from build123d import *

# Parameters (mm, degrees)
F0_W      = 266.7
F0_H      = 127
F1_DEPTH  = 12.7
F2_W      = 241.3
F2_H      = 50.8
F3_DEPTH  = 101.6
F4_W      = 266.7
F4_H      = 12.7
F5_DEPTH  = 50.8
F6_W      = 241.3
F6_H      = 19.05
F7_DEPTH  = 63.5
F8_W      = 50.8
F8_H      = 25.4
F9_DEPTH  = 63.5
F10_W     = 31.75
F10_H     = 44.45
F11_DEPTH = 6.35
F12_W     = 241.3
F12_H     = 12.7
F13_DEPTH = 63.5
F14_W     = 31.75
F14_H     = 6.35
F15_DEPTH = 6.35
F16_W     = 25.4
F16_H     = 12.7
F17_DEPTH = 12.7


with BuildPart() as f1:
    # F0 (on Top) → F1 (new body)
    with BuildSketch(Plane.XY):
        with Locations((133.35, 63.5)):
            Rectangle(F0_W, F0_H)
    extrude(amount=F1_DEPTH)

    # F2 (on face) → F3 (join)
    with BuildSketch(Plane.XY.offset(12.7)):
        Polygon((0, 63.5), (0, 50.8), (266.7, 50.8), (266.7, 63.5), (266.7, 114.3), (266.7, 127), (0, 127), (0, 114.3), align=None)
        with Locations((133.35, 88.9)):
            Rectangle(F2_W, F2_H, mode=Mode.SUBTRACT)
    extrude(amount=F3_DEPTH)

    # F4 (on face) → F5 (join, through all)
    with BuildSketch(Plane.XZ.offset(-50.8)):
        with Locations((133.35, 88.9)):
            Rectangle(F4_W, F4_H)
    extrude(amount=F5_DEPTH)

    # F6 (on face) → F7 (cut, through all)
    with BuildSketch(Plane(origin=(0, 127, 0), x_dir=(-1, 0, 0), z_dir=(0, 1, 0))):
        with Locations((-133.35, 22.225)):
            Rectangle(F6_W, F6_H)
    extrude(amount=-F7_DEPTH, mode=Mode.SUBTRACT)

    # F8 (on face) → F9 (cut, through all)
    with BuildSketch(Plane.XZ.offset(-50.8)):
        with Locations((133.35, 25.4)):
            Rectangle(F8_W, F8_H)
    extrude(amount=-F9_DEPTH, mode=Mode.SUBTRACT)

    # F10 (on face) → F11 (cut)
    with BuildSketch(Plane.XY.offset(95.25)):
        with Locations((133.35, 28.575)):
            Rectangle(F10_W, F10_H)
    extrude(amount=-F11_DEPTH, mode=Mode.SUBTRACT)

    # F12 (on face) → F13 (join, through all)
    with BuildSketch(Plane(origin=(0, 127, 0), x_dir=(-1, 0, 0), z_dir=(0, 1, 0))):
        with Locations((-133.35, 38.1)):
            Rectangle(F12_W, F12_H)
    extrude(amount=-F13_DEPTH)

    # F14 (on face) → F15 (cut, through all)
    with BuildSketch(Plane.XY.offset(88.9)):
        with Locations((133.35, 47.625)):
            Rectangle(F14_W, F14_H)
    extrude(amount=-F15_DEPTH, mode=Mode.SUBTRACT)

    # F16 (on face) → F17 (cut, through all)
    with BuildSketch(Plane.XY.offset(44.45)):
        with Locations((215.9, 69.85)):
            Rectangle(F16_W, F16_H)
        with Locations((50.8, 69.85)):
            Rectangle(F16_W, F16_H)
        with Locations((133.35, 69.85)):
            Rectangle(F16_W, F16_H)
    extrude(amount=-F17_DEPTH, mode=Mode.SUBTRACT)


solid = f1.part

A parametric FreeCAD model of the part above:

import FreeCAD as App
import Part
import Sketcher
Q = App.Units.Quantity

doc = App.newDocument("Part")
body = doc.addObject("PartDesign::Body", "Body")

# Sketch on XY plane
sketch1 = body.newObject("Sketcher::SketchObject", "Sketch")
sketch1.AttachmentSupport = (doc.getObject("XY_Plane"), [""])
sketch1.MapMode = "FlatFace"
sketch1.addGeometry(Part.LineSegment(App.Vector(0, 127, 0), App.Vector(0, 0, 0)), False)
sketch1.addGeometry(Part.LineSegment(App.Vector(0, 0, 0), App.Vector(266.7, 0, 0)), False)
sketch1.addGeometry(Part.LineSegment(App.Vector(266.7, 0, 0), App.Vector(266.7, 127, 0)), False)
sketch1.addGeometry(Part.LineSegment(App.Vector(266.7, 127, 0), App.Vector(0, 127, 0)), False)
sketch1.addConstraint(Sketcher.Constraint("Coincident", 0, 2, 1, 1))
sketch1.addConstraint(Sketcher.Constraint("Coincident", 1, 2, 2, 1))
sketch1.addConstraint(Sketcher.Constraint("Coincident", 2, 2, 3, 1))
sketch1.addConstraint(Sketcher.Constraint("Coincident", 3, 2, 0, 1))
sketch1.addConstraint(Sketcher.Constraint("Vertical", 0))
sketch1.addConstraint(Sketcher.Constraint("Horizontal", 1))
sketch1.addConstraint(Sketcher.Constraint("Vertical", 2))
sketch1.addConstraint(Sketcher.Constraint("Horizontal", 3))
sketch1.addConstraint(Sketcher.Constraint("Coincident", 0, 2, -1, 1))
sketch1.addConstraint(Sketcher.Constraint("DistanceY", 0, 2, 0, 1, Q("5 in")))
sketch1.addConstraint(Sketcher.Constraint("DistanceX", 1, 1, 1, 2, Q("10.5 in")))
pad1 = body.newObject("PartDesign::Pad", "Pad")
pad1.Profile = sketch1
pad1.Length = Q("0.5 in")

# Sketch on XY plane
sketch2 = body.newObject("Sketcher::SketchObject", "Sketch001")
sketch2.AttachmentSupport = (doc.getObject("XY_Plane"), [""])
sketch2.MapMode = "FlatFace"
sketch2.AttachmentOffset = App.Placement(App.Vector(0, 0, 0.5 * 25.4), App.Rotation())
sketch2.addGeometry(Part.LineSegment(App.Vector(0, 50.8, 0), App.Vector(266.7, 50.8, 0)), False)
sketch2.addGeometry(Part.LineSegment(App.Vector(266.7, 50.8, 0), App.Vector(266.7, 127, 0)), False)
sketch2.addGeometry(Part.LineSegment(App.Vector(266.7, 127, 0), App.Vector(0, 127, 0)), False)
sketch2.addGeometry(Part.LineSegment(App.Vector(0, 127, 0), App.Vector(0, 50.8, 0)), False)
sketch2.addGeometry(Part.LineSegment(App.Vector(254, 63.5, 0), App.Vector(12.7, 63.5, 0)), False)
sketch2.addGeometry(Part.LineSegment(App.Vector(12.7, 63.5, 0), App.Vector(12.7, 114.3, 0)), False)
sketch2.addGeometry(Part.LineSegment(App.Vector(12.7, 114.3, 0), App.Vector(254, 114.3, 0)), False)
sketch2.addGeometry(Part.LineSegment(App.Vector(254, 114.3, 0), App.Vector(254, 63.5, 0)), False)
sketch2.addConstraint(Sketcher.Constraint("Coincident", 0, 2, 1, 1))
sketch2.addConstraint(Sketcher.Constraint("Coincident", 1, 2, 2, 1))
sketch2.addConstraint(Sketcher.Constraint("Coincident", 2, 2, 3, 1))
sketch2.addConstraint(Sketcher.Constraint("Coincident", 3, 2, 0, 1))
sketch2.addConstraint(Sketcher.Constraint("Coincident", 4, 2, 5, 1))
sketch2.addConstraint(Sketcher.Constraint("Coincident", 5, 2, 6, 1))
sketch2.addConstraint(Sketcher.Constraint("Coincident", 6, 2, 7, 1))
sketch2.addConstraint(Sketcher.Constraint("Coincident", 7, 2, 4, 1))
sketch2.addConstraint(Sketcher.Constraint("Horizontal", 0))
sketch2.addConstraint(Sketcher.Constraint("Vertical", 1))
sketch2.addConstraint(Sketcher.Constraint("Horizontal", 2))
sketch2.addConstraint(Sketcher.Constraint("Vertical", 3))
sketch2.addConstraint(Sketcher.Constraint("Horizontal", 4))
sketch2.addConstraint(Sketcher.Constraint("Vertical", 5))
sketch2.addConstraint(Sketcher.Constraint("Horizontal", 6))
sketch2.addConstraint(Sketcher.Constraint("Vertical", 7))
sketch2.addConstraint(Sketcher.Constraint("PointOnObject", 2, 2, -2))
sketch2.addConstraint(Sketcher.Constraint("DistanceY", 1, 1, 1, 2, Q("3 in")))
sketch2.addConstraint(Sketcher.Constraint("DistanceY", 5, 1, 5, 2, Q("2 in")))
sketch2.addConstraint(Sketcher.Constraint("DistanceX", 0, 1, 0, 2, Q("10.5 in")))
sketch2.addConstraint(Sketcher.Constraint("DistanceX", 4, 2, 4, 1, Q("9.5 in")))
sketch2.addConstraint(Sketcher.Constraint("DistanceY", -1, 1, 0, 2, Q("2 in")))
sketch2.addConstraint(Sketcher.Constraint("DistanceX", -1, 1, 6, 2, Q("10 in")))
sketch2.addConstraint(Sketcher.Constraint("DistanceY", -1, 1, 4, 2, Q("2.5 in")))
pad2 = body.newObject("PartDesign::Pad", "Pad001")
pad2.Profile = sketch2
pad2.Length = Q("4 in")

# Sketch on XZ plane
sketch3 = body.newObject("Sketcher::SketchObject", "Sketch002")
sketch3.AttachmentSupport = (doc.getObject("XZ_Plane"), [""])
sketch3.MapMode = "FlatFace"
sketch3.AttachmentOffset = App.Placement(App.Vector(0, 0, -2 * 25.4), App.Rotation())
sketch3.addGeometry(Part.LineSegment(App.Vector(0, 95.25, 0), App.Vector(0, 82.55, 0)), False)
sketch3.addGeometry(Part.LineSegment(App.Vector(0, 82.55, 0), App.Vector(266.7, 82.55, 0)), False)
sketch3.addGeometry(Part.LineSegment(App.Vector(266.7, 82.55, 0), App.Vector(266.7, 95.25, 0)), False)
sketch3.addGeometry(Part.LineSegment(App.Vector(266.7, 95.25, 0), App.Vector(0, 95.25, 0)), False)
sketch3.addConstraint(Sketcher.Constraint("Coincident", 0, 2, 1, 1))
sketch3.addConstraint(Sketcher.Constraint("Coincident", 1, 2, 2, 1))
sketch3.addConstraint(Sketcher.Constraint("Coincident", 2, 2, 3, 1))
sketch3.addConstraint(Sketcher.Constraint("Coincident", 3, 2, 0, 1))
sketch3.addConstraint(Sketcher.Constraint("Vertical", 0))
sketch3.addConstraint(Sketcher.Constraint("Horizontal", 1))
sketch3.addConstraint(Sketcher.Constraint("Vertical", 2))
sketch3.addConstraint(Sketcher.Constraint("Horizontal", 3))
sketch3.addConstraint(Sketcher.Constraint("PointOnObject", 0, 2, -2))
sketch3.addConstraint(Sketcher.Constraint("DistanceX", 1, 1, 1, 2, Q("10.5 in")))
sketch3.addConstraint(Sketcher.Constraint("DistanceY", 0, 2, 0, 1, Q("0.5 in")))
sketch3.addConstraint(Sketcher.Constraint("DistanceY", -1, 1, 0, 2, Q("3.25 in")))
pad3 = body.newObject("PartDesign::Pad", "Pad002")
pad3.Profile = sketch3
pad3.Length = Q("2 in")

# Sketch on XZ plane
sketch4 = body.newObject("Sketcher::SketchObject", "Sketch003")
sketch4.AttachmentSupport = (doc.getObject("XZ_Plane"), [""])
sketch4.MapMode = "FlatFace"
sketch4.AttachmentOffset = App.Placement(App.Vector(0, 0, -5 * 25.4), App.Rotation())
sketch4.addGeometry(Part.LineSegment(App.Vector(254, 31.75, 0), App.Vector(254, 12.7, 0)), False)
sketch4.addGeometry(Part.LineSegment(App.Vector(254, 12.7, 0), App.Vector(12.7, 12.7, 0)), False)
sketch4.addGeometry(Part.LineSegment(App.Vector(12.7, 12.7, 0), App.Vector(12.7, 31.75, 0)), False)
sketch4.addGeometry(Part.LineSegment(App.Vector(12.7, 31.75, 0), App.Vector(254, 31.75, 0)), False)
sketch4.addConstraint(Sketcher.Constraint("Coincident", 0, 2, 1, 1))
sketch4.addConstraint(Sketcher.Constraint("Coincident", 1, 2, 2, 1))
sketch4.addConstraint(Sketcher.Constraint("Coincident", 2, 2, 3, 1))
sketch4.addConstraint(Sketcher.Constraint("Coincident", 3, 2, 0, 1))
sketch4.addConstraint(Sketcher.Constraint("Vertical", 0))
sketch4.addConstraint(Sketcher.Constraint("Horizontal", 1))
sketch4.addConstraint(Sketcher.Constraint("Vertical", 2))
sketch4.addConstraint(Sketcher.Constraint("Horizontal", 3))
sketch4.addConstraint(Sketcher.Constraint("DistanceX", 1, 2, 1, 1, Q("9.5 in")))
sketch4.addConstraint(Sketcher.Constraint("DistanceX", -1, 1, 0, 2, Q("10 in")))
sketch4.addConstraint(Sketcher.Constraint("DistanceY", 0, 2, 0, 1, Q("0.75 in")))
sketch4.addConstraint(Sketcher.Constraint("DistanceY", -1, 1, 0, 2, Q("0.5 in")))
pocket1 = body.newObject("PartDesign::Pocket", "Pocket")
pocket1.Profile = sketch4
pocket1.Length = Q("2.5 in")
pocket1.Reversed = True

# Sketch on XZ plane
sketch5 = body.newObject("Sketcher::SketchObject", "Sketch004")
sketch5.AttachmentSupport = (doc.getObject("XZ_Plane"), [""])
sketch5.MapMode = "FlatFace"
sketch5.AttachmentOffset = App.Placement(App.Vector(0, 0, -2 * 25.4), App.Rotation())
sketch5.addGeometry(Part.LineSegment(App.Vector(107.95, 38.1, 0), App.Vector(107.95, 12.7, 0)), False)
sketch5.addGeometry(Part.LineSegment(App.Vector(107.95, 12.7, 0), App.Vector(158.75, 12.7, 0)), False)
sketch5.addGeometry(Part.LineSegment(App.Vector(158.75, 12.7, 0), App.Vector(158.75, 38.1, 0)), False)
sketch5.addGeometry(Part.LineSegment(App.Vector(158.75, 38.1, 0), App.Vector(107.95, 38.1, 0)), False)
sketch5.addConstraint(Sketcher.Constraint("Coincident", 0, 2, 1, 1))
sketch5.addConstraint(Sketcher.Constraint("Coincident", 1, 2, 2, 1))
sketch5.addConstraint(Sketcher.Constraint("Coincident", 2, 2, 3, 1))
sketch5.addConstraint(Sketcher.Constraint("Coincident", 3, 2, 0, 1))
sketch5.addConstraint(Sketcher.Constraint("Vertical", 0))
sketch5.addConstraint(Sketcher.Constraint("Horizontal", 1))
sketch5.addConstraint(Sketcher.Constraint("Vertical", 2))
sketch5.addConstraint(Sketcher.Constraint("Horizontal", 3))
sketch5.addConstraint(Sketcher.Constraint("DistanceX", 1, 1, 1, 2, Q("2 in")))
sketch5.addConstraint(Sketcher.Constraint("DistanceY", 0, 2, 0, 1, Q("1 in")))
sketch5.addConstraint(Sketcher.Constraint("DistanceY", -1, 1, 0, 2, Q("0.5 in")))
sketch5.addConstraint(Sketcher.Constraint("DistanceX", -1, 1, 0, 2, Q("4.25 in")))
pocket2 = body.newObject("PartDesign::Pocket", "Pocket001")
pocket2.Profile = sketch5
pocket2.Length = Q("2.5 in")

# Sketch on XY plane
sketch6 = body.newObject("Sketcher::SketchObject", "Sketch005")
sketch6.AttachmentSupport = (doc.getObject("XY_Plane"), [""])
sketch6.MapMode = "FlatFace"
sketch6.AttachmentOffset = App.Placement(App.Vector(0, 0, 3.75 * 25.4), App.Rotation())
sketch6.addGeometry(Part.LineSegment(App.Vector(117.475, 50.8, 0), App.Vector(117.475, 6.35, 0)), False)
sketch6.addGeometry(Part.LineSegment(App.Vector(117.475, 6.35, 0), App.Vector(149.225, 6.35, 0)), False)
sketch6.addGeometry(Part.LineSegment(App.Vector(149.225, 6.35, 0), App.Vector(149.225, 50.8, 0)), False)
sketch6.addGeometry(Part.LineSegment(App.Vector(149.225, 50.8, 0), App.Vector(117.475, 50.8, 0)), False)
sketch6.addConstraint(Sketcher.Constraint("Coincident", 0, 2, 1, 1))
sketch6.addConstraint(Sketcher.Constraint("Coincident", 1, 2, 2, 1))
sketch6.addConstraint(Sketcher.Constraint("Coincident", 2, 2, 3, 1))
sketch6.addConstraint(Sketcher.Constraint("Coincident", 3, 2, 0, 1))
sketch6.addConstraint(Sketcher.Constraint("Vertical", 0))
sketch6.addConstraint(Sketcher.Constraint("Horizontal", 1))
sketch6.addConstraint(Sketcher.Constraint("Vertical", 2))
sketch6.addConstraint(Sketcher.Constraint("Horizontal", 3))
sketch6.addConstraint(Sketcher.Constraint("DistanceY", -1, 1, 2, 2, Q("2 in")))
sketch6.addConstraint(Sketcher.Constraint("DistanceX", 1, 1, 1, 2, Q("1.25 in")))
sketch6.addConstraint(Sketcher.Constraint("DistanceY", 0, 2, 0, 1, Q("1.75 in")))
sketch6.addConstraint(Sketcher.Constraint("DistanceX", -1, 1, 0, 2, Q("4.625 in")))
pocket3 = body.newObject("PartDesign::Pocket", "Pocket002")
pocket3.Profile = sketch6
pocket3.Length = Q("0.25 in")

# Sketch on XZ plane
sketch7 = body.newObject("Sketcher::SketchObject", "Sketch006")
sketch7.AttachmentSupport = (doc.getObject("XZ_Plane"), [""])
sketch7.MapMode = "FlatFace"
sketch7.AttachmentOffset = App.Placement(App.Vector(0, 0, -5 * 25.4), App.Rotation())
sketch7.addGeometry(Part.LineSegment(App.Vector(254, 44.45, 0), App.Vector(254, 31.75, 0)), False)
sketch7.addGeometry(Part.LineSegment(App.Vector(254, 31.75, 0), App.Vector(12.7, 31.75, 0)), False)
sketch7.addGeometry(Part.LineSegment(App.Vector(12.7, 31.75, 0), App.Vector(12.7, 44.45, 0)), False)
sketch7.addGeometry(Part.LineSegment(App.Vector(12.7, 44.45, 0), App.Vector(254, 44.45, 0)), False)
sketch7.addConstraint(Sketcher.Constraint("Coincident", 0, 2, 1, 1))
sketch7.addConstraint(Sketcher.Constraint("Coincident", 1, 2, 2, 1))
sketch7.addConstraint(Sketcher.Constraint("Coincident", 2, 2, 3, 1))
sketch7.addConstraint(Sketcher.Constraint("Coincident", 3, 2, 0, 1))
sketch7.addConstraint(Sketcher.Constraint("Vertical", 0))
sketch7.addConstraint(Sketcher.Constraint("Horizontal", 1))
sketch7.addConstraint(Sketcher.Constraint("Vertical", 2))
sketch7.addConstraint(Sketcher.Constraint("Horizontal", 3))
sketch7.addConstraint(Sketcher.Constraint("DistanceX", 1, 2, 1, 1, Q("9.5 in")))
sketch7.addConstraint(Sketcher.Constraint("DistanceY", 0, 2, 0, 1, Q("0.5 in")))
sketch7.addConstraint(Sketcher.Constraint("DistanceX", -1, 1, 0, 2, Q("10 in")))
sketch7.addConstraint(Sketcher.Constraint("DistanceY", -1, 1, 0, 2, Q("1.25 in")))
pad4 = body.newObject("PartDesign::Pad", "Pad003")
pad4.Profile = sketch7
pad4.Length = Q("2.5 in")

# Sketch on XY plane
sketch8 = body.newObject("Sketcher::SketchObject", "Sketch007")
sketch8.AttachmentSupport = (doc.getObject("XY_Plane"), [""])
sketch8.MapMode = "FlatFace"
sketch8.AttachmentOffset = App.Placement(App.Vector(0, 0, 3.5 * 25.4), App.Rotation())
sketch8.addGeometry(Part.LineSegment(App.Vector(117.475, 50.8, 0), App.Vector(117.475, 44.45, 0)), False)
sketch8.addGeometry(Part.LineSegment(App.Vector(117.475, 44.45, 0), App.Vector(149.225, 44.45, 0)), False)
sketch8.addGeometry(Part.LineSegment(App.Vector(149.225, 44.45, 0), App.Vector(149.225, 50.8, 0)), False)
sketch8.addGeometry(Part.LineSegment(App.Vector(149.225, 50.8, 0), App.Vector(117.475, 50.8, 0)), False)
sketch8.addConstraint(Sketcher.Constraint("Coincident", 0, 2, 1, 1))
sketch8.addConstraint(Sketcher.Constraint("Coincident", 1, 2, 2, 1))
sketch8.addConstraint(Sketcher.Constraint("Coincident", 2, 2, 3, 1))
sketch8.addConstraint(Sketcher.Constraint("Coincident", 3, 2, 0, 1))
sketch8.addConstraint(Sketcher.Constraint("Vertical", 0))
sketch8.addConstraint(Sketcher.Constraint("Horizontal", 1))
sketch8.addConstraint(Sketcher.Constraint("Vertical", 2))
sketch8.addConstraint(Sketcher.Constraint("Horizontal", 3))
sketch8.addConstraint(Sketcher.Constraint("DistanceY", -1, 1, 2, 2, Q("2 in")))
sketch8.addConstraint(Sketcher.Constraint("DistanceX", 1, 1, 1, 2, Q("1.25 in")))
sketch8.addConstraint(Sketcher.Constraint("DistanceY", 0, 2, 0, 1, Q("0.25 in")))
sketch8.addConstraint(Sketcher.Constraint("DistanceX", -1, 1, 0, 2, Q("4.625 in")))
pocket4 = body.newObject("PartDesign::Pocket", "Pocket003")
pocket4.Profile = sketch8
pocket4.Length = Q("0.25 in")

# Sketch on XY plane
sketch9 = body.newObject("Sketcher::SketchObject", "Sketch008")
sketch9.AttachmentSupport = (doc.getObject("XY_Plane"), [""])
sketch9.MapMode = "FlatFace"
sketch9.AttachmentOffset = App.Placement(App.Vector(0, 0, 1.75 * 25.4), App.Rotation())
sketch9.addGeometry(Part.LineSegment(App.Vector(203.2, 76.2, 0), App.Vector(203.2, 63.5, 0)), False)
sketch9.addGeometry(Part.LineSegment(App.Vector(203.2, 63.5, 0), App.Vector(228.6, 63.5, 0)), False)
sketch9.addGeometry(Part.LineSegment(App.Vector(228.6, 63.5, 0), App.Vector(228.6, 76.2, 0)), False)
sketch9.addGeometry(Part.LineSegment(App.Vector(228.6, 76.2, 0), App.Vector(203.2, 76.2, 0)), False)
sketch9.addGeometry(Part.LineSegment(App.Vector(38.1, 76.2, 0), App.Vector(38.1, 63.5, 0)), False)
sketch9.addGeometry(Part.LineSegment(App.Vector(38.1, 63.5, 0), App.Vector(63.5, 63.5, 0)), False)
sketch9.addGeometry(Part.LineSegment(App.Vector(63.5, 63.5, 0), App.Vector(63.5, 76.2, 0)), False)
sketch9.addGeometry(Part.LineSegment(App.Vector(63.5, 76.2, 0), App.Vector(38.1, 76.2, 0)), False)
sketch9.addGeometry(Part.LineSegment(App.Vector(120.65, 76.2, 0), App.Vector(120.65, 63.5, 0)), False)
sketch9.addGeometry(Part.LineSegment(App.Vector(120.65, 63.5, 0), App.Vector(146.05, 63.5, 0)), False)
sketch9.addGeometry(Part.LineSegment(App.Vector(146.05, 63.5, 0), App.Vector(146.05, 76.2, 0)), False)
sketch9.addGeometry(Part.LineSegment(App.Vector(146.05, 76.2, 0), App.Vector(120.65, 76.2, 0)), False)
sketch9.addConstraint(Sketcher.Constraint("Coincident", 0, 2, 1, 1))
sketch9.addConstraint(Sketcher.Constraint("Coincident", 1, 2, 2, 1))
sketch9.addConstraint(Sketcher.Constraint("Coincident", 2, 2, 3, 1))
sketch9.addConstraint(Sketcher.Constraint("Coincident", 3, 2, 0, 1))
sketch9.addConstraint(Sketcher.Constraint("Coincident", 4, 2, 5, 1))
sketch9.addConstraint(Sketcher.Constraint("Coincident", 5, 2, 6, 1))
sketch9.addConstraint(Sketcher.Constraint("Coincident", 6, 2, 7, 1))
sketch9.addConstraint(Sketcher.Constraint("Coincident", 7, 2, 4, 1))
sketch9.addConstraint(Sketcher.Constraint("Coincident", 8, 2, 9, 1))
sketch9.addConstraint(Sketcher.Constraint("Coincident", 9, 2, 10, 1))
sketch9.addConstraint(Sketcher.Constraint("Coincident", 10, 2, 11, 1))
sketch9.addConstraint(Sketcher.Constraint("Coincident", 11, 2, 8, 1))
sketch9.addConstraint(Sketcher.Constraint("Vertical", 0))
sketch9.addConstraint(Sketcher.Constraint("Horizontal", 1))
sketch9.addConstraint(Sketcher.Constraint("Vertical", 2))
sketch9.addConstraint(Sketcher.Constraint("Horizontal", 3))
sketch9.addConstraint(Sketcher.Constraint("Vertical", 4))
sketch9.addConstraint(Sketcher.Constraint("Horizontal", 5))
sketch9.addConstraint(Sketcher.Constraint("Vertical", 6))
sketch9.addConstraint(Sketcher.Constraint("Horizontal", 7))
sketch9.addConstraint(Sketcher.Constraint("Vertical", 8))
sketch9.addConstraint(Sketcher.Constraint("Horizontal", 9))
sketch9.addConstraint(Sketcher.Constraint("Vertical", 10))
sketch9.addConstraint(Sketcher.Constraint("Horizontal", 11))
sketch9.addConstraint(Sketcher.Constraint("Horizontal", 1, 2, 4, 2))
sketch9.addConstraint(Sketcher.Constraint("Horizontal", 3, 2, 6, 2))
sketch9.addConstraint(Sketcher.Constraint("Horizontal", 5, 2, 8, 2))
sketch9.addConstraint(Sketcher.Constraint("Horizontal", 7, 2, 10, 2))
sketch9.addConstraint(Sketcher.Constraint("Equal", 3, 5))
sketch9.addConstraint(Sketcher.Constraint("Equal", 7, 9))
sketch9.addConstraint(Sketcher.Constraint("DistanceX", 1, 1, 1, 2, Q("1 in")))
sketch9.addConstraint(Sketcher.Constraint("DistanceY", 0, 2, 0, 1, Q("0.5 in")))
sketch9.addConstraint(Sketcher.Constraint("DistanceX", -1, 1, 0, 2, Q("8 in")))
sketch9.addConstraint(Sketcher.Constraint("DistanceY", -1, 1, 2, 2, Q("3 in")))
sketch9.addConstraint(Sketcher.Constraint("DistanceX", -1, 1, 4, 2, Q("1.5 in")))
sketch9.addConstraint(Sketcher.Constraint("DistanceX", -1, 1, 8, 2, Q("4.75 in")))
pocket5 = body.newObject("PartDesign::Pocket", "Pocket004")
pocket5.Profile = sketch9
pocket5.Length = Q("0.5 in")

doc.recompute()
